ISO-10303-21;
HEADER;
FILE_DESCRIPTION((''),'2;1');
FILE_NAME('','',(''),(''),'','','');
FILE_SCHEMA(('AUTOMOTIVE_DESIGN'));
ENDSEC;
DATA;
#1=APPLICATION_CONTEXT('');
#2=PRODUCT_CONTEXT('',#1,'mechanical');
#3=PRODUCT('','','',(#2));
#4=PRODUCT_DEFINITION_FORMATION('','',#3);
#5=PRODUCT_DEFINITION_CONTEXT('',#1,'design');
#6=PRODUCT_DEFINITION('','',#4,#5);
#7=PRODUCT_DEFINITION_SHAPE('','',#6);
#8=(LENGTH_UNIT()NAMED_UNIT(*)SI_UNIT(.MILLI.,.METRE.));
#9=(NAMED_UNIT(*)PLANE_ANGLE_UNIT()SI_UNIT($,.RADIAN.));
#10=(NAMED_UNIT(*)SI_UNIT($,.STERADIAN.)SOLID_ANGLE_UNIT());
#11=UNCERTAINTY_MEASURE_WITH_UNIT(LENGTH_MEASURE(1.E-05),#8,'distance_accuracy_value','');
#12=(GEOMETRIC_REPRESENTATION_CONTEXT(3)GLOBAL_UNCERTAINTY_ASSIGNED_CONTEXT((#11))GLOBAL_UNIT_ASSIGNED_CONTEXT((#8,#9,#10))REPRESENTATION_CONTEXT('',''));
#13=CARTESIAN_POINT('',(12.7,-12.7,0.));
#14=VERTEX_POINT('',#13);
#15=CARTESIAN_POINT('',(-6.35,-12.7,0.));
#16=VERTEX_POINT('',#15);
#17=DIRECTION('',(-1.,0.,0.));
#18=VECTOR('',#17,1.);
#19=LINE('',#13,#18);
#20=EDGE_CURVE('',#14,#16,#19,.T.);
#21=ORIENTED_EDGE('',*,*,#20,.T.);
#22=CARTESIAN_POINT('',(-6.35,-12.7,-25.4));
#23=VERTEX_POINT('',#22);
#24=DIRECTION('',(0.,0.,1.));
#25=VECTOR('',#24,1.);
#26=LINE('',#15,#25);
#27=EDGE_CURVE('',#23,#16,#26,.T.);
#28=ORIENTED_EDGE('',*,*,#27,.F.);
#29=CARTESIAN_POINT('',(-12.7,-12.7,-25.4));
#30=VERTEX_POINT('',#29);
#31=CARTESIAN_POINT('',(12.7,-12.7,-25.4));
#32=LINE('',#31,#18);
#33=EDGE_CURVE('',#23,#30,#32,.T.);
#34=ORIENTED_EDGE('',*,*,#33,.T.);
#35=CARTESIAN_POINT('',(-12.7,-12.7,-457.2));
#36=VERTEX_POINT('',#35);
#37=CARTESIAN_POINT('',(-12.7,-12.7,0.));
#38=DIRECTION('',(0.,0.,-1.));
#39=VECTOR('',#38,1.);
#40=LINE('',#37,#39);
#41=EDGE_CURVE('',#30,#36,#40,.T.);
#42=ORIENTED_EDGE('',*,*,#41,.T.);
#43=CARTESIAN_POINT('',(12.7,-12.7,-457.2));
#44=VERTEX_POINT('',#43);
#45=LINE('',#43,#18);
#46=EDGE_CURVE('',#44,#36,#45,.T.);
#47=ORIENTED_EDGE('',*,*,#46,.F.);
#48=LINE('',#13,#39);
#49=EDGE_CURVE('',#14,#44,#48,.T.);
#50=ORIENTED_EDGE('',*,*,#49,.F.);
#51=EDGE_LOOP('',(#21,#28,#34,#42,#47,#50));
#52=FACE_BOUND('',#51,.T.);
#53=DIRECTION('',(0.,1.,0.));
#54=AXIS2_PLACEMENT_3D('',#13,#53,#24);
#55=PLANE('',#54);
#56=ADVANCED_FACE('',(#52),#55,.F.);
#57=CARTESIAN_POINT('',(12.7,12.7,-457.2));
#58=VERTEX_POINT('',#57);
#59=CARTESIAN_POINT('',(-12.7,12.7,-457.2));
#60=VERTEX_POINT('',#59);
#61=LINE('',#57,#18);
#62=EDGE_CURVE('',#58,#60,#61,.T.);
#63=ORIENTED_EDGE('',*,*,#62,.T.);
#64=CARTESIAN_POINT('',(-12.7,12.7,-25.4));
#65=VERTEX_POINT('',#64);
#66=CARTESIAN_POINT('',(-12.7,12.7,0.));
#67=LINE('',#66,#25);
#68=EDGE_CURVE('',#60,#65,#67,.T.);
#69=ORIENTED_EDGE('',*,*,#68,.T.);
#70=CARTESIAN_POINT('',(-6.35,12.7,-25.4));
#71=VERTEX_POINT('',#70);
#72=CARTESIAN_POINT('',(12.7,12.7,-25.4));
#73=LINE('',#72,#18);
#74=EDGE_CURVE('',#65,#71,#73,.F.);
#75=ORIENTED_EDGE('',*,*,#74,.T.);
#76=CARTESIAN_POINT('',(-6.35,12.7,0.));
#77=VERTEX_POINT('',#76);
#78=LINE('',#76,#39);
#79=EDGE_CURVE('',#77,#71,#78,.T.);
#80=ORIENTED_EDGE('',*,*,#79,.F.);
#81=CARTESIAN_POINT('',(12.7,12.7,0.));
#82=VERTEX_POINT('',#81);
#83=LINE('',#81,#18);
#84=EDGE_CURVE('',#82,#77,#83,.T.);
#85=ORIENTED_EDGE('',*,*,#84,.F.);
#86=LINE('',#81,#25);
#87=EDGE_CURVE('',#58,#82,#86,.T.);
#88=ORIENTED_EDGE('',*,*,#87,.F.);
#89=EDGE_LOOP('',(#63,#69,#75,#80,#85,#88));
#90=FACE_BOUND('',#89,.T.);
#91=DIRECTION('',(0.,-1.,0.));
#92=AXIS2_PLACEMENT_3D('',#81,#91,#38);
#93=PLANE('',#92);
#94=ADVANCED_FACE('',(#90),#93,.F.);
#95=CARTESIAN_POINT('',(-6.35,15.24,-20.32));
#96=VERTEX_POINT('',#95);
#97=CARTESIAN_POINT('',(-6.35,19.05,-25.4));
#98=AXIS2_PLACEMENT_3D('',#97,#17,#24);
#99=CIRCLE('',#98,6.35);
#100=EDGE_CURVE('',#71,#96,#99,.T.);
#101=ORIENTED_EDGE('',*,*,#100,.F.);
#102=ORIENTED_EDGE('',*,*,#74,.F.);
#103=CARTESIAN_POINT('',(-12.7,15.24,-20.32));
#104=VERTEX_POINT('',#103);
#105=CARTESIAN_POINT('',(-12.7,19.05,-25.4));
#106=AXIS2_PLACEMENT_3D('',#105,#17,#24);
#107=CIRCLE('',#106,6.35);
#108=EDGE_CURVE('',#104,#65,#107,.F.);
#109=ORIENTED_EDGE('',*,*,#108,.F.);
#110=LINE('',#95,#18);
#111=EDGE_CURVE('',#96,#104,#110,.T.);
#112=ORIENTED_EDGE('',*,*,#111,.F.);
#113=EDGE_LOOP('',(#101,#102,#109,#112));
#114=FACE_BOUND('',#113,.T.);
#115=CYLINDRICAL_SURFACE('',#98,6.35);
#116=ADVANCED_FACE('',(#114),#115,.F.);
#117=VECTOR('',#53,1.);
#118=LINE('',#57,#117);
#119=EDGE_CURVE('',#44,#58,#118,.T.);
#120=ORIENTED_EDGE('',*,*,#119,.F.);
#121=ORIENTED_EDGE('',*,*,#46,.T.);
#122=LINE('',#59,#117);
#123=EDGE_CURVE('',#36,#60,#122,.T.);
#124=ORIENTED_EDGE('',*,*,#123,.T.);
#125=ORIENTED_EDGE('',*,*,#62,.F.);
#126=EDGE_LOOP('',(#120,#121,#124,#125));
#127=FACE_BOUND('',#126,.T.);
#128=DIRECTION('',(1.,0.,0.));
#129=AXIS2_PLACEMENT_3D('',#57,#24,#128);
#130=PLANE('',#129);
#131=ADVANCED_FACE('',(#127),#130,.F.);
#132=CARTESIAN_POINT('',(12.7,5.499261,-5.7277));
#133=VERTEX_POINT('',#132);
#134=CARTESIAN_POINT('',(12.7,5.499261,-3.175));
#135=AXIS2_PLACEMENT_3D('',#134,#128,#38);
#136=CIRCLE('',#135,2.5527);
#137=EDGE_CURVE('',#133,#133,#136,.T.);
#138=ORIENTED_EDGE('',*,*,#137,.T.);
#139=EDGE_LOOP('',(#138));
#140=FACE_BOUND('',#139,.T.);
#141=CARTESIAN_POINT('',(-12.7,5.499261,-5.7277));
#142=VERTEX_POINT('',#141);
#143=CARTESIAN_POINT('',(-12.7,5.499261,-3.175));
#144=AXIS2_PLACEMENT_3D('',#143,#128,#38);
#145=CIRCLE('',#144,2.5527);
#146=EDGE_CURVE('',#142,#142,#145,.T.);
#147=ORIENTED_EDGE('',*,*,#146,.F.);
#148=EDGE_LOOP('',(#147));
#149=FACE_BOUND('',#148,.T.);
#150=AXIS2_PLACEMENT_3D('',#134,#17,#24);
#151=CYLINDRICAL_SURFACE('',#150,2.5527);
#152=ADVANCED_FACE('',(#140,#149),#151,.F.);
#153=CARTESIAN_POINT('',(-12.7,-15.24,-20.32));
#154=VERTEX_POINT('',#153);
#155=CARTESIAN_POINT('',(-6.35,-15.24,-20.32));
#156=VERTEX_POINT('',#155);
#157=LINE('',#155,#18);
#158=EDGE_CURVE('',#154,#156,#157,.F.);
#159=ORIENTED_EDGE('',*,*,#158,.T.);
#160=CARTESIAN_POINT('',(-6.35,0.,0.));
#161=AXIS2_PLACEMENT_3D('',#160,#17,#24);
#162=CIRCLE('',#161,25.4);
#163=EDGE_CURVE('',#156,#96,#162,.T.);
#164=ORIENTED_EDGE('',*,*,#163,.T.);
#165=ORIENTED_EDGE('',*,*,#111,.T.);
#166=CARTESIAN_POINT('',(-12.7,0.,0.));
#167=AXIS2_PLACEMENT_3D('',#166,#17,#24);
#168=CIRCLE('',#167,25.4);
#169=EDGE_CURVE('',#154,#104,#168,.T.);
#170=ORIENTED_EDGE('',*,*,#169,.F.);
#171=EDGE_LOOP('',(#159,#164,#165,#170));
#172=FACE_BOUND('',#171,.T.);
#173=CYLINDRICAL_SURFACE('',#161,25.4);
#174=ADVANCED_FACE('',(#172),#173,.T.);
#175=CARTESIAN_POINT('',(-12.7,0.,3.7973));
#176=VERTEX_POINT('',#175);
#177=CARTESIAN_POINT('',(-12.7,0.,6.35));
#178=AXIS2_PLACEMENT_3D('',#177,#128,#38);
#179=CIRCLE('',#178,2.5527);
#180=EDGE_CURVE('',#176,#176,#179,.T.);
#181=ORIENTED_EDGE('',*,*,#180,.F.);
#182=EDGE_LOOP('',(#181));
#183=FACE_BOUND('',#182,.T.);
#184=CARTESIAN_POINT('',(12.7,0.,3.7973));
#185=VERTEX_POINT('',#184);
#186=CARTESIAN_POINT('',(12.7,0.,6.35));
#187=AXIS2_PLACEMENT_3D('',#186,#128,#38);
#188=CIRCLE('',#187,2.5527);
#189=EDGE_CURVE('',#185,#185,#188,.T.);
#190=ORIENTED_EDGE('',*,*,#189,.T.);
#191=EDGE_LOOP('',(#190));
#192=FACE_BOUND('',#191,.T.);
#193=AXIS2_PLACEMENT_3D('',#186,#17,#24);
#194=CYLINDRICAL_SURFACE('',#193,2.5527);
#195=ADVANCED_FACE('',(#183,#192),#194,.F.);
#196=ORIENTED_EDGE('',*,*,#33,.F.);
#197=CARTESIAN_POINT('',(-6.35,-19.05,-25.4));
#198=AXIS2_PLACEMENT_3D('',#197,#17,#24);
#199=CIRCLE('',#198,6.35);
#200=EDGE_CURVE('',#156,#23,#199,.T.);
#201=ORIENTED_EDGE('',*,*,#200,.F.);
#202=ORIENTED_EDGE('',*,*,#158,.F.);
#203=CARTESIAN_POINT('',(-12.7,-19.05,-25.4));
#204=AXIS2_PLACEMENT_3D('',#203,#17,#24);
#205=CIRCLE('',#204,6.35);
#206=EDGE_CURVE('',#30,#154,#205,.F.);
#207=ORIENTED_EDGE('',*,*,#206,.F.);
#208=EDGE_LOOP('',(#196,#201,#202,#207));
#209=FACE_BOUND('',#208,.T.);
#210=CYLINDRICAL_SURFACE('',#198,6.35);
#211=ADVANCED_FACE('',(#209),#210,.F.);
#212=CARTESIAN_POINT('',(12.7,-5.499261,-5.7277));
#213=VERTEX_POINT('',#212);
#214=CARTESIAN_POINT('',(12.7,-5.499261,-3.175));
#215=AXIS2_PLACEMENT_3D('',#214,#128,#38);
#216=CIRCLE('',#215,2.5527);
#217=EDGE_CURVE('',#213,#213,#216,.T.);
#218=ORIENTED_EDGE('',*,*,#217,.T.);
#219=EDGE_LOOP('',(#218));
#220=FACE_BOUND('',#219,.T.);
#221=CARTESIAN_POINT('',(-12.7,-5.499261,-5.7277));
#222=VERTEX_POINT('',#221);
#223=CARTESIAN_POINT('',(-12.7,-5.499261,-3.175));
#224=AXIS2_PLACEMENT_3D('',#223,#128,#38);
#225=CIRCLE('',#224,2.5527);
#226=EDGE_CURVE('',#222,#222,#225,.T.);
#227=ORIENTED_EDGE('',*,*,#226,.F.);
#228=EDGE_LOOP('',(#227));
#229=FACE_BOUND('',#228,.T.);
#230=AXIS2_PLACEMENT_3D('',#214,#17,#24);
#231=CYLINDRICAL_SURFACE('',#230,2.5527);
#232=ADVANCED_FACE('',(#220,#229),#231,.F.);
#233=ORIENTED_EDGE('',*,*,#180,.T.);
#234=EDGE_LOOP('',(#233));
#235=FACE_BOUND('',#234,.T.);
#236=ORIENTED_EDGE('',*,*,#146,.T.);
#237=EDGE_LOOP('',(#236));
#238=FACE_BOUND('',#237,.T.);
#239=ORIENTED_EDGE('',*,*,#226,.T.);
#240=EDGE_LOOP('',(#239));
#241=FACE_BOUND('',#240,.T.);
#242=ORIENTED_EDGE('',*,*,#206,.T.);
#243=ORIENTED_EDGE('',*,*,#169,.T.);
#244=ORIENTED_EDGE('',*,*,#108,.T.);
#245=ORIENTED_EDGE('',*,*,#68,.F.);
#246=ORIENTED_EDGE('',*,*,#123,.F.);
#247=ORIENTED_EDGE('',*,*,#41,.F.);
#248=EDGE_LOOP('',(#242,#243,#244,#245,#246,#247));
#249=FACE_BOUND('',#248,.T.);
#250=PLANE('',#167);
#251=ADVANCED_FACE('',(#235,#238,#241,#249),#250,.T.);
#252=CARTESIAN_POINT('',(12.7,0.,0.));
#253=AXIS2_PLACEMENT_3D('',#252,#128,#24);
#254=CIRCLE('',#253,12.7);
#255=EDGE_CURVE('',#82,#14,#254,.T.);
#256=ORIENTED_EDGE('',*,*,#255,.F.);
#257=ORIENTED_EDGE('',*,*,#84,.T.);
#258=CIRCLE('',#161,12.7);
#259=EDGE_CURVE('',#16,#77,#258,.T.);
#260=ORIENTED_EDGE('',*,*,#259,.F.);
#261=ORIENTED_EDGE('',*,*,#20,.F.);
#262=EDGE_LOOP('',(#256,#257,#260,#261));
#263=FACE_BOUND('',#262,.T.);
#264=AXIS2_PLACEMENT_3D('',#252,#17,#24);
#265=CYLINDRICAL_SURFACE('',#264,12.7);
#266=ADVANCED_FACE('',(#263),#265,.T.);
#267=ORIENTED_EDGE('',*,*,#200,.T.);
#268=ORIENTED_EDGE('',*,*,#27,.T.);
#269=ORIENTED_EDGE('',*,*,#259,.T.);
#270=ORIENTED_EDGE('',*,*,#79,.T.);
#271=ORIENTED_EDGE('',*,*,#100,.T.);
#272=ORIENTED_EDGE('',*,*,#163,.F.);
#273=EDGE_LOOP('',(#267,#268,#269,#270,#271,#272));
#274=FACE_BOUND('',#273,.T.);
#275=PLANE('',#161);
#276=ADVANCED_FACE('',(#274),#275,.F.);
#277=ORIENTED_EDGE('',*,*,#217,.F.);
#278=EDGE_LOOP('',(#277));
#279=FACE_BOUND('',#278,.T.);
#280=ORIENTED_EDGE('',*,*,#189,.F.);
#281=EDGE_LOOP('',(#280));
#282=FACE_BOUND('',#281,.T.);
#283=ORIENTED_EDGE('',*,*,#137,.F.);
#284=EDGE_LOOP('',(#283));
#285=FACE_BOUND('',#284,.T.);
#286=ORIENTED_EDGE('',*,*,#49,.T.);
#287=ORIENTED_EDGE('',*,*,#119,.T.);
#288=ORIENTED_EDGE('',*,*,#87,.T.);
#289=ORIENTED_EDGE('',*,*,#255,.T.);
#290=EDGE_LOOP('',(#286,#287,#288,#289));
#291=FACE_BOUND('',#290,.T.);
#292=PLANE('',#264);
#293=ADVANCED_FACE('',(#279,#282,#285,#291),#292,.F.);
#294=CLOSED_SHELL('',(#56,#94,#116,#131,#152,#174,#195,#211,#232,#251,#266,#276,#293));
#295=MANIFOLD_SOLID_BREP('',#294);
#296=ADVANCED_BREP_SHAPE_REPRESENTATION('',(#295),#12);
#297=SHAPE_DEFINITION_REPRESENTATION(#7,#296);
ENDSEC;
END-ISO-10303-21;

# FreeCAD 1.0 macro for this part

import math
import FreeCAD as App
import Part
import Sketcher
from FreeCAD import Vector
Q = App.Units.Quantity


def edges_at(feature, points):
    """Names of the edges that pass closest to the given points."""
    edges = feature.Shape.Edges
    near = lambda p: min(range(len(edges)), key=lambda i: edges[i].distToShape(Part.Vertex(*p))[0])
    return sorted({f"Edge{near(p) + 1}" for p in points})

doc = App.newDocument("Part")
params = doc.addObject("Spreadsheet::Sheet", "Params")
for row, (alias, value) in enumerate([
    ("sketch1_radius", "0.5 in"),
    ("sketch1_height", "18 in"),
    ("sketch1_diameter", "0.201 in"),
    ("pad1_length", "1 in"),
    ("sketch2_diameter", "2 in"),
    ("pad2_length", "0.25 in"),
    ("sketch3_diameter", "0.201 in"),
    ("fillet_radius", "0.25 in"),
], start=1):
    params.set(f"A{row}", alias)
    params.set(f"B{row}", "=" + value)
    params.setAlias(f"B{row}", alias)

body = doc.addObject("PartDesign::Body", "Body")

sketch1 = doc.addObject("Sketcher::SketchObject", "Sketch")
body.addObject(sketch1)
sketch1.AttachmentSupport = (doc.YZ_Plane, [""])
sketch1.MapMode = "FlatFace"
sketch1.addGeometry(Part.LineSegment(Vector(12.7, -457.2, 0), Vector(12.7, 0, 0)), False)
sketch1.addGeometry(Part.ArcOfCircle(Part.Circle(Vector(0, 0, 0), Vector(0, 0, 1), 12.7), math.radians(0), math.radians(180)), False)
sketch1.addGeometry(Part.LineSegment(Vector(-12.7, 0, 0), Vector(-12.7, -457.2, 0)), False)
sketch1.addGeometry(Part.LineSegment(Vector(-12.7, -457.2, 0), Vector(12.7, -457.2, 0)), False)
sketch1.addGeometry(Part.Circle(Vector(-5.5, -3.2, 0), Vector(0, 0, 1), 2.6), False)
sketch1.addGeometry(Part.Circle(Vector(5.5, -3.2, 0), Vector(0, 0, 1), 2.6), False)
sketch1.addGeometry(Part.Circle(Vector(0, 6.3, 0), Vector(0, 0, 1), 2.6), False)
sketch1.addConstraint(Sketcher.Constraint("Tangent", 0, 2, 1, 1))
sketch1.addConstraint(Sketcher.Constraint("Tangent", 1, 2, 2, 1))
sketch1.addConstraint(Sketcher.Constraint("Coincident", 2, 2, 3, 1))
sketch1.addConstraint(Sketcher.Constraint("Coincident", 3, 2, 0, 1))
sketch1.addConstraint(Sketcher.Constraint("Vertical", 0))
sketch1.addConstraint(Sketcher.Constraint("Vertical", 2))
sketch1.addConstraint(Sketcher.Constraint("Horizontal", 3))
sketch1.addConstraint(Sketcher.Constraint("Coincident", 1, 3, -1, 1))
sketch1.addConstraint(Sketcher.Constraint("Equal", 4, 5))
sketch1.addConstraint(Sketcher.Constraint("Equal", 5, 6))
sketch1.addConstraint(Sketcher.Constraint("Symmetric", 4, 3, 5, 3, -2))
sketch1.addConstraint(Sketcher.Constraint("PointOnObject", 6, 3, -2))
sketch1.addConstraint(Sketcher.Constraint("Radius", 1, Q("0.5 in")))
sketch1.addConstraint(Sketcher.Constraint("DistanceY", 0, 1, 0, 2, Q("18 in")))
sketch1.addConstraint(Sketcher.Constraint("Diameter", 4, Q("0.201 in")))
sketch1.addConstraint(Sketcher.Constraint("DistanceY", -1, 1, 6, 3, Q("0.25 in")))
sketch1.addConstraint(Sketcher.Constraint("DistanceY", 4, 3, -1, 1, Q("0.125 in")))
sketch1.addConstraint(Sketcher.Constraint("DistanceX", 4, 3, -1, 1, 5.499261))
sketch1.setExpression("Constraints[12]", "Params.sketch1_radius")
sketch1.setExpression("Constraints[13]", "Params.sketch1_height")
sketch1.setExpression("Constraints[14]", "Params.sketch1_diameter")
pad1 = doc.addObject("PartDesign::Pad", "Pad")
body.addObject(pad1)
pad1.Profile = sketch1
pad1.setExpression("Length", "Params.pad1_length")
pad1.Midplane = True

sketch2 = doc.addObject("Sketcher::SketchObject", "Sketch001")
body.addObject(sketch2)
sketch2.AttachmentSupport = (doc.YZ_Plane, [""])
sketch2.MapMode = "FlatFace"
sketch2.AttachmentOffset = App.Placement(Vector(0, 0, -0.5 * 25.4), App.Rotation())
sketch2.addGeometry(Part.Circle(Vector(0, 0, 0), Vector(0, 0, 1), 25), False)
sketch2.addConstraint(Sketcher.Constraint("Coincident", 0, 3, -1, 1))
sketch2.addConstraint(Sketcher.Constraint("Diameter", 0, Q("2 in")))
sketch2.setExpression("Constraints[1]", "Params.sketch2_diameter")
pad2 = doc.addObject("PartDesign::Pad", "Pad001")
body.addObject(pad2)
pad2.Profile = sketch2
pad2.setExpression("Length", "Params.pad2_length")

sketch3 = doc.addObject("Sketcher::SketchObject", "Sketch002")
body.addObject(sketch3)
sketch3.AttachmentSupport = (doc.YZ_Plane, [""])
sketch3.MapMode = "FlatFace"
sketch3.AttachmentOffset = App.Placement(Vector(0, 0, -0.25 * 25.4), App.Rotation())
sketch3.addGeometry(Part.Circle(Vector(5.5, -3.2, 0), Vector(0, 0, 1), 2.6), False)
sketch3.addGeometry(Part.Circle(Vector(-5.5, -3.2, 0), Vector(0, 0, 1), 2.6), False)
sketch3.addGeometry(Part.Circle(Vector(0, 6.3, 0), Vector(0, 0, 1), 2.6), False)
sketch3.addConstraint(Sketcher.Constraint("Equal", 0, 1))
sketch3.addConstraint(Sketcher.Constraint("Equal", 1, 2))
sketch3.addConstraint(Sketcher.Constraint("Symmetric", 0, 3, 1, 3, -2))
sketch3.addConstraint(Sketcher.Constraint("PointOnObject", 2, 3, -2))
sketch3.addConstraint(Sketcher.Constraint("Diameter", 0, Q("0.201 in")))
sketch3.addConstraint(Sketcher.Constraint("DistanceY", -1, 1, 2, 3, Q("0.25 in")))
sketch3.addConstraint(Sketcher.Constraint("DistanceY", 0, 3, -1, 1, Q("0.125 in")))
sketch3.addConstraint(Sketcher.Constraint("DistanceX", -1, 1, 0, 3, 5.499261))
sketch3.setExpression("Constraints[4]", "Params.sketch3_diameter")
pocket1 = doc.addObject("PartDesign::Pocket", "Pocket")
body.addObject(pocket1)
pocket1.Profile = sketch3
pocket1.Type = "ThroughAll"
doc.recompute()

fillet = doc.addObject("PartDesign::Fillet", "Fillet")
body.addObject(fillet)
fillet.Base = (pocket1, edges_at(pocket1, [(-9.525, 12.7, -21.997), (-9.525, -12.7, -21.997)]))
fillet.setExpression("Radius", "Params.fillet_radius")

doc.recompute()
